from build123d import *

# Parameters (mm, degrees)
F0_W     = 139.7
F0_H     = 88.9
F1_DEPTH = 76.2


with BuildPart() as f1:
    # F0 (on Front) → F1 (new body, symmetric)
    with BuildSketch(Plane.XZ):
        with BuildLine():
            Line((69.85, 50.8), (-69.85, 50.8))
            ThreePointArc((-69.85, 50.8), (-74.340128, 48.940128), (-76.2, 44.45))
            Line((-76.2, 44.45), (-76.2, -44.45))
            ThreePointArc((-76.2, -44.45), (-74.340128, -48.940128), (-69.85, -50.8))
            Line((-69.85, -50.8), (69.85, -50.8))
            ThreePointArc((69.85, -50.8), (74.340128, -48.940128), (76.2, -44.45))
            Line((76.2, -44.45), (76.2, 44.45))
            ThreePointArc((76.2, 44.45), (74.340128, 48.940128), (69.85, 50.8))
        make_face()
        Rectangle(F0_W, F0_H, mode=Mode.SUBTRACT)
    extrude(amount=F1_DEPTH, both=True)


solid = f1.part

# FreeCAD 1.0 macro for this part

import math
import FreeCAD as App
import Part
import Sketcher
Q = App.Units.Quantity

doc = App.newDocument("Part")
body = doc.addObject("PartDesign::Body", "Body")

# Sketch on XZ plane
sketch1 = body.newObject("Sketcher::SketchObject", "Sketch")
sketch1.AttachmentSupport = (doc.getObject("XZ_Plane"), [""])
sketch1.MapMode = "FlatFace"
sketch1.addGeometry([
    Part.LineSegment(App.Vector(70, 51, 0), App.Vector(-70, 51, 0)),  # 0
    Part.ArcOfCircle(Part.Circle(App.Vector(-70, 44, 0), App.Vector(0, 0, 1), 6), math.radians(90), math.radians(180)),  # 1
    Part.LineSegment(App.Vector(-76, 44, 0), App.Vector(-76, -44, 0)),  # 2
    Part.ArcOfCircle(Part.Circle(App.Vector(-70, -44, 0), App.Vector(0, 0, 1), 6), math.radians(-180), math.radians(-90)),  # 3
    Part.LineSegment(App.Vector(-70, -51, 0), App.Vector(70, -51, 0)),  # 4
    Part.ArcOfCircle(Part.Circle(App.Vector(70, -44, 0), App.Vector(0, 0, 1), 6), math.radians(-90), math.radians(0)),  # 5
    Part.LineSegment(App.Vector(76, -44, 0), App.Vector(76, 44, 0)),  # 6
    Part.ArcOfCircle(Part.Circle(App.Vector(70, 44, 0), App.Vector(0, 0, 1), 6), math.radians(0), math.radians(90)),  # 7
    Part.LineSegment(App.Vector(70, -44, 0), App.Vector(-70, -44, 0)),  # 8
    Part.LineSegment(App.Vector(-70, -44, 0), App.Vector(-70, 44, 0)),  # 9
    Part.LineSegment(App.Vector(-70, 44, 0), App.Vector(70, 44, 0)),  # 10
    Part.LineSegment(App.Vector(70, 44, 0), App.Vector(70, -44, 0)),  # 11
], False)
sketch1.addConstraint([
    Sketcher.Constraint("Tangent", 0, 2, 1, 1),
    Sketcher.Constraint("Tangent", 1, 2, 2, 1),
    Sketcher.Constraint("Tangent", 2, 2, 3, 1),
    Sketcher.Constraint("Tangent", 3, 2, 4, 1),
    Sketcher.Constraint("Tangent", 4, 2, 5, 1),
    Sketcher.Constraint("Tangent", 5, 2, 6, 1),
    Sketcher.Constraint("Tangent", 6, 2, 7, 1),
    Sketcher.Constraint("Tangent", 7, 2, 0, 1),
    Sketcher.Constraint("Coincident", 8, 2, 9, 1),
    Sketcher.Constraint("Coincident", 9, 2, 10, 1),
    Sketcher.Constraint("Coincident", 10, 2, 11, 1),
    Sketcher.Constraint("Coincident", 11, 2, 8, 1),
    Sketcher.Constraint("Horizontal", 0),
    Sketcher.Constraint("Vertical", 2),
    Sketcher.Constraint("Horizontal", 4),
    Sketcher.Constraint("Vertical", 6),
    Sketcher.Constraint("Horizontal", 8),
    Sketcher.Constraint("Vertical", 9),
    Sketcher.Constraint("Horizontal", 10),
    Sketcher.Constraint("Vertical", 11),
    Sketcher.Constraint("Coincident", 8, 2, 3, 3),
    Sketcher.Constraint("Coincident", 9, 2, 1, 3),
    Sketcher.Constraint("Coincident", 10, 2, 7, 3),
    Sketcher.Constraint("Equal", 3, 5),
    Sketcher.Constraint("Symmetric", 1, 3, 5, 3, -1, 1),
    Sketcher.Constraint("Radius", 1, Q("0.25 in")),
    Sketcher.Constraint("DistanceX", 0, 2, 0, 1, Q("5.5 in")),
    Sketcher.Constraint("DistanceY", 2, 2, 2, 1, Q("3.5 in")),
])
pad1 = body.newObject("PartDesign::Pad", "Pad")
pad1.Profile = sketch1
pad1.Length = Q("6 in")
pad1.Midplane = True

doc.recompute()
